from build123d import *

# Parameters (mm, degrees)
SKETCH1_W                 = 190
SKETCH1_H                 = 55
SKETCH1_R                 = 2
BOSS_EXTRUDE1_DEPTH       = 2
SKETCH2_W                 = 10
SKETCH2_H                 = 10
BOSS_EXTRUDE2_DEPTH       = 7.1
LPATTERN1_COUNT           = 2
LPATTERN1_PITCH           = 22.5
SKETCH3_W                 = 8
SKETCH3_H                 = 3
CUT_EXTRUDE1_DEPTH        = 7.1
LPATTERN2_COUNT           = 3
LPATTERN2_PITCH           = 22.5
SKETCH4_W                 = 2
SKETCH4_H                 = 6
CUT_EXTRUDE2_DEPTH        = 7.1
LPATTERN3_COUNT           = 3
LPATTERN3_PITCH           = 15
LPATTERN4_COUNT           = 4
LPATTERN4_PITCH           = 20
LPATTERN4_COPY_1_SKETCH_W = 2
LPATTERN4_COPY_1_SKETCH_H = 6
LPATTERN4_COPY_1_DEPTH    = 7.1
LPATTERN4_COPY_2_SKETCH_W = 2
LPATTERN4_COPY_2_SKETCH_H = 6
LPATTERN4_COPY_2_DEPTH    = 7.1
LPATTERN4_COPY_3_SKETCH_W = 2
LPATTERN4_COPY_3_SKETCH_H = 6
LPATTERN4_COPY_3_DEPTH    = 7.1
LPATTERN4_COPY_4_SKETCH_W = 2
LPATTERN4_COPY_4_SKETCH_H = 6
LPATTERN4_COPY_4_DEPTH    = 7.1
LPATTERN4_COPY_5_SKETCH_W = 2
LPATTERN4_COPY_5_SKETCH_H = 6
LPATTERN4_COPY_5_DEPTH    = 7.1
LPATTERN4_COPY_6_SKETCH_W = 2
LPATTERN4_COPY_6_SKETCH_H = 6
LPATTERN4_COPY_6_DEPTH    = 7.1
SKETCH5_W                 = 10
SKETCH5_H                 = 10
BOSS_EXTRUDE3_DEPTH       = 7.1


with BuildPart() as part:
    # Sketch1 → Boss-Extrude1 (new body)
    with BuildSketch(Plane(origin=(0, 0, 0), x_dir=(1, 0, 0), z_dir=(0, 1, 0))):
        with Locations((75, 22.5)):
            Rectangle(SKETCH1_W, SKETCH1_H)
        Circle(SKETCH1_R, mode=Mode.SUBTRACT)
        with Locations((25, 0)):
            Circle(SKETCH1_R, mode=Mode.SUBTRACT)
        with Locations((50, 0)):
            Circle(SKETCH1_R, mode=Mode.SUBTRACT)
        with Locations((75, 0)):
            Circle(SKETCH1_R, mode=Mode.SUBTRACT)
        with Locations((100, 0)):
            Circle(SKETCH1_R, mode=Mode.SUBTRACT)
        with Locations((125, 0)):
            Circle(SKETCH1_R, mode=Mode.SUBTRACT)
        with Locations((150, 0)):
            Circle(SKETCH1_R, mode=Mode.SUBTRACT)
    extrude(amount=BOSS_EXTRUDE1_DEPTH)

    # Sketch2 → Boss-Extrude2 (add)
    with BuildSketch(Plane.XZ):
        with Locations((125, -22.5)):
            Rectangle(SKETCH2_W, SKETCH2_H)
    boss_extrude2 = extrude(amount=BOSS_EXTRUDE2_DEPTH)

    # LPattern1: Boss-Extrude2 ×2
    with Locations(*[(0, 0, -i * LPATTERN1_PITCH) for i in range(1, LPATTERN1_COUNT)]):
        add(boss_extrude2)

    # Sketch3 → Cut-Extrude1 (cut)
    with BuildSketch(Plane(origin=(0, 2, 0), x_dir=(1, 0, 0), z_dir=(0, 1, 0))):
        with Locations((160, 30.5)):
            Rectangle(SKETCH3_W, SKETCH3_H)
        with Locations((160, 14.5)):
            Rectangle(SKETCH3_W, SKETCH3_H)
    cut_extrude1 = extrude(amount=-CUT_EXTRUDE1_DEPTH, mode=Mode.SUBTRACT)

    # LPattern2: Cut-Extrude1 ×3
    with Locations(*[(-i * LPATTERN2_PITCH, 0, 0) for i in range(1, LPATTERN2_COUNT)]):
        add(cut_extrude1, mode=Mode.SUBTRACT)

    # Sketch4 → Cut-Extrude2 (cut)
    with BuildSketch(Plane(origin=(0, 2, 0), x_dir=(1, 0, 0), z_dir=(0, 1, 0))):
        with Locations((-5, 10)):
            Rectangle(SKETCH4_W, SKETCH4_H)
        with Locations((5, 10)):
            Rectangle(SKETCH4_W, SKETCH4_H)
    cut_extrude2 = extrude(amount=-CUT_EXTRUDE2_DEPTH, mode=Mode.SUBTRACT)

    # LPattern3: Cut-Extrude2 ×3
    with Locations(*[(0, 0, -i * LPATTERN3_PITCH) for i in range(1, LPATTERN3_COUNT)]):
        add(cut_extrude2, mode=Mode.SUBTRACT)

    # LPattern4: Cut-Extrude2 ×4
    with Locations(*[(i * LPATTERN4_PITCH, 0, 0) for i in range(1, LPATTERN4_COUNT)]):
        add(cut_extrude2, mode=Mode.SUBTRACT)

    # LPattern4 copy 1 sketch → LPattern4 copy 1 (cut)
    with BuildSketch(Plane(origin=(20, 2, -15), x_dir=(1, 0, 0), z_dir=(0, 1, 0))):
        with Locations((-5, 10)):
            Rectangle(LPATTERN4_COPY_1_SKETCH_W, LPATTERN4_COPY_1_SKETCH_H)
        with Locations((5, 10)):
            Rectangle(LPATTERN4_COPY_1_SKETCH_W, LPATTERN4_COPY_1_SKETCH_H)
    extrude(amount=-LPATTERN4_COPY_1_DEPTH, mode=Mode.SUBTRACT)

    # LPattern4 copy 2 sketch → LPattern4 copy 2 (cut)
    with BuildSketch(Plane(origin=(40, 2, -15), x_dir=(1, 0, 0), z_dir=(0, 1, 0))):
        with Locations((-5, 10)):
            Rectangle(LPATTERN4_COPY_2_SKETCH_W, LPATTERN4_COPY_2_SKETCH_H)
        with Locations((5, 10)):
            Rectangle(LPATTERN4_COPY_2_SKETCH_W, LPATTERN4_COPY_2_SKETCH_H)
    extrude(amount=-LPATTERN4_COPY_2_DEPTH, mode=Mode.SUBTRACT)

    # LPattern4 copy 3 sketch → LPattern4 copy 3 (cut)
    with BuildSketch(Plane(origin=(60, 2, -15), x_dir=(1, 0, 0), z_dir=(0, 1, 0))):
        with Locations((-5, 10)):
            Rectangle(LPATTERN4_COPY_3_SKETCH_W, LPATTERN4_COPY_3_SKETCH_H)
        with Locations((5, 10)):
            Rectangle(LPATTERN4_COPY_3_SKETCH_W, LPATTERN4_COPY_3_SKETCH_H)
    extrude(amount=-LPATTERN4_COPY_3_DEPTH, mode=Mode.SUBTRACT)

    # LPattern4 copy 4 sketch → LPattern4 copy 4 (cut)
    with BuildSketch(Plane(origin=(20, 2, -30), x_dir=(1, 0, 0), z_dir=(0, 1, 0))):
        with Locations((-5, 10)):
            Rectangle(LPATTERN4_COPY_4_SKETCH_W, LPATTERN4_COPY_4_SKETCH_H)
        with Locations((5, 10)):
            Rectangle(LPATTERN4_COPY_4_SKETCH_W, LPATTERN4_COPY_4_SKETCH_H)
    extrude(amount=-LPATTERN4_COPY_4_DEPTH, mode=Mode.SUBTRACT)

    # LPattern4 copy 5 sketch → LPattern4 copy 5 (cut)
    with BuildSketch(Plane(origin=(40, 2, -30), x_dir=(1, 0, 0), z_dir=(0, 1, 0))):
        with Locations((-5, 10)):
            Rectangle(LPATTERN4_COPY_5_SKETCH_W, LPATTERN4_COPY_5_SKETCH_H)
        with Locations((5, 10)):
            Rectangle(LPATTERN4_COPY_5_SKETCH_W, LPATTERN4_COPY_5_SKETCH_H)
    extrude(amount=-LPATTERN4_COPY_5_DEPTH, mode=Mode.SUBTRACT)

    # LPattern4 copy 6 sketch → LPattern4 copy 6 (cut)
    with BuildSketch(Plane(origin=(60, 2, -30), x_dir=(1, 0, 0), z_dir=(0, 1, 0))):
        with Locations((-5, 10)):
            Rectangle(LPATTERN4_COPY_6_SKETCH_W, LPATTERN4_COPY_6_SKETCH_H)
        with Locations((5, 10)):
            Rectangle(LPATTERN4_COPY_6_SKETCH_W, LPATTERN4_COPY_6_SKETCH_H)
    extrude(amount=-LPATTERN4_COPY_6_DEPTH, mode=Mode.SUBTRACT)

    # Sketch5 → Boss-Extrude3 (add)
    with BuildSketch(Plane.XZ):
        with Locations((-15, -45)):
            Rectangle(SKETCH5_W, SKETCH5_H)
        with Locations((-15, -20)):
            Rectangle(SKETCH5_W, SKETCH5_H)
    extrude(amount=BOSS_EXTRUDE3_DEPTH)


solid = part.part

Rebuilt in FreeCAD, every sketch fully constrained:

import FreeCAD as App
import Part
import Sketcher
from FreeCAD import Vector
Q = App.Units.Quantity

doc = App.newDocument("Part")
params = doc.addObject("Spreadsheet::Sheet", "Params")
for row, (alias, value) in enumerate([
    ("sketch1_diameter", "4 mm"),
    ("sketch1_width", "190 mm"),
    ("sketch1_height", "55 mm"),
    ("pad1_length", "2 mm"),
    ("sketch2_width", "10 mm"),
    ("pad2_length", "7.1 mm"),
    ("linearpattern_pitch", "22.5 mm"),
    ("sketch3_width", "8 mm"),
    ("sketch3_height", "3 mm"),
    ("pocket1_length", "7.1 mm"),
    ("linearpattern2_pitch", "22.5 mm"),
    ("sketch4_width", "2 mm"),
    ("sketch4_height", "6 mm"),
    ("pocket2_length", "7.1 mm"),
    ("linearpattern3_pitch", "15 mm"),
    ("linearpattern4_pitch", "20 mm"),
    ("sketch5_width", "2 mm"),
    ("sketch5_height", "6 mm"),
    ("pocket3_length", "7.1 mm"),
    ("sketch6_width", "2 mm"),
    ("sketch6_height", "6 mm"),
    ("pocket4_length", "7.1 mm"),
    ("sketch7_width", "2 mm"),
    ("sketch7_height", "6 mm"),
    ("pocket5_length", "7.1 mm"),
    ("sketch8_width", "2 mm"),
    ("sketch8_height", "6 mm"),
    ("pocket6_length", "7.1 mm"),
    ("sketch9_width", "2 mm"),
    ("sketch9_height", "6 mm"),
    ("pocket7_length", "7.1 mm"),
    ("sketch10_width", "2 mm"),
    ("sketch10_height", "6 mm"),
    ("pocket8_length", "7.1 mm"),
    ("sketch11_width", "10 mm"),
    ("pad3_length", "7.1 mm"),
], start=1):
    params.set(f"A{row}", alias)
    params.set(f"B{row}", "=" + value)
    params.setAlias(f"B{row}", alias)

body = doc.addObject("PartDesign::Body", "Body")

# Sketch on XZ plane
sketch1 = doc.addObject("Sketcher::SketchObject", "Sketch")
body.addObject(sketch1)
sketch1.AttachmentSupport = (doc.XZ_Plane, [""])
sketch1.MapMode = "FlatFace"
sketch1.addGeometry([
    Part.LineSegment(Vector(-20, -50, 0), Vector(-20, 5, 0)),  # 0
    Part.LineSegment(Vector(-20, 5, 0), Vector(170, 5, 0)),  # 1
    Part.LineSegment(Vector(170, 5, 0), Vector(170, -50, 0)),  # 2
    Part.LineSegment(Vector(170, -50, 0), Vector(-20, -50, 0)),  # 3
    Part.Circle(Vector(0, 0, 0), Vector(0, 0, 1), 2),  # 4
    Part.Circle(Vector(25, 0, 0), Vector(0, 0, 1), 2),  # 5
    Part.Circle(Vector(50, 0, 0), Vector(0, 0, 1), 2),  # 6
    Part.Circle(Vector(75, 0, 0), Vector(0, 0, 1), 2),  # 7
    Part.Circle(Vector(100, 0, 0), Vector(0, 0, 1), 2),  # 8
    Part.Circle(Vector(125, 0, 0), Vector(0, 0, 1), 2),  # 9
    Part.Circle(Vector(150, 0, 0), Vector(0, 0, 1), 2),  # 10
], False)
sketch1.addConstraint([
    Sketcher.Constraint("Coincident", 0, 2, 1, 1),
    Sketcher.Constraint("Coincident", 1, 2, 2, 1),
    Sketcher.Constraint("Coincident", 2, 2, 3, 1),
    Sketcher.Constraint("Coincident", 3, 2, 0, 1),
    Sketcher.Constraint("Vertical", 0),
    Sketcher.Constraint("Horizontal", 1),
    Sketcher.Constraint("Vertical", 2),
    Sketcher.Constraint("Horizontal", 3),
    Sketcher.Constraint("Coincident", 4, 3, -1, 1),
    Sketcher.Constraint("Equal", 4, 5),
    Sketcher.Constraint("Equal", 5, 6),
    Sketcher.Constraint("Equal", 6, 7),
    Sketcher.Constraint("Equal", 7, 8),
    Sketcher.Constraint("Equal", 8, 9),
    Sketcher.Constraint("Equal", 9, 10),
    Sketcher.Constraint("PointOnObject", 5, 3, -1),
    Sketcher.Constraint("PointOnObject", 6, 3, -1),
    Sketcher.Constraint("PointOnObject", 7, 3, -1),
    Sketcher.Constraint("PointOnObject", 8, 3, -1),
    Sketcher.Constraint("PointOnObject", 9, 3, -1),
    Sketcher.Constraint("PointOnObject", 10, 3, -1),
    Sketcher.Constraint("Diameter", 4, Q("4 mm")),
    Sketcher.Constraint("DistanceX", 1, 1, 1, 2, Q("190 mm")),
    Sketcher.Constraint("DistanceY", 0, 1, 0, 2, Q("55 mm")),
    Sketcher.Constraint("DistanceX", -1, 1, 5, 3, Q("25 mm")),
    Sketcher.Constraint("DistanceX", -1, 1, 6, 3, Q("50 mm")),
    Sketcher.Constraint("DistanceX", -1, 1, 7, 3, Q("75 mm")),
    Sketcher.Constraint("DistanceX", -1, 1, 8, 3, Q("100 mm")),
    Sketcher.Constraint("DistanceX", -1, 1, 9, 3, Q("125 mm")),
    Sketcher.Constraint("DistanceX", -1, 1, 10, 3, Q("150 mm")),
    Sketcher.Constraint("DistanceX", 0, 2, -1, 1, Q("20 mm")),
    Sketcher.Constraint("DistanceY", -1, 1, 0, 2, Q("5 mm")),
])
sketch1.setExpression("Constraints[21]", "Params.sketch1_diameter")
sketch1.setExpression("Constraints[22]", "Params.sketch1_width")
sketch1.setExpression("Constraints[23]", "Params.sketch1_height")
pad1 = doc.addObject("PartDesign::Pad", "Pad")
body.addObject(pad1)
pad1.Profile = sketch1
pad1.setExpression("Length", "Params.pad1_length")
pad1.Reversed = True

# Sketch on XZ plane
sketch2 = doc.addObject("Sketcher::SketchObject", "Sketch001")
body.addObject(sketch2)
sketch2.AttachmentSupport = (doc.XZ_Plane, [""])
sketch2.MapMode = "FlatFace"
sketch2.addGeometry([
    Part.LineSegment(Vector(120, -18, 0), Vector(120, -28, 0)),
    Part.LineSegment(Vector(120, -28, 0), Vector(130, -28, 0)),
    Part.LineSegment(Vector(130, -28, 0), Vector(130, -18, 0)),
    Part.LineSegment(Vector(130, -18, 0), Vector(120, -18, 0)),
], False)
sketch2.addConstraint([
    Sketcher.Constraint("Coincident", 0, 2, 1, 1),
    Sketcher.Constraint("Coincident", 1, 2, 2, 1),
    Sketcher.Constraint("Coincident", 2, 2, 3, 1),
    Sketcher.Constraint("Coincident", 3, 2, 0, 1),
    Sketcher.Constraint("Vertical", 0),
    Sketcher.Constraint("Horizontal", 1),
    Sketcher.Constraint("Vertical", 2),
    Sketcher.Constraint("Horizontal", 3),
    Sketcher.Constraint("Equal", 3, 0),
    Sketcher.Constraint("DistanceX", 1, 1, 1, 2, Q("10 mm")),
    Sketcher.Constraint("DistanceX", -1, 1, 0, 2, Q("120 mm")),
    Sketcher.Constraint("DistanceY", 0, 2, -1, 1, Q("27.5 mm")),
])
sketch2.setExpression("Constraints[9]", "Params.sketch2_width")
pad2 = doc.addObject("PartDesign::Pad", "Pad001")
body.addObject(pad2)
pad2.Profile = sketch2
pad2.setExpression("Length", "Params.pad2_length")
doc.recompute()

linearpattern = doc.addObject("PartDesign::LinearPattern", "LinearPattern")
body.addObject(linearpattern)
linearpattern.Originals = [pad2]
linearpattern.Direction = (doc.Z_Axis, [""])
linearpattern.Mode = "offset"
linearpattern.setExpression("Offset", "Params.linearpattern_pitch")
linearpattern.Occurrences = 2
linearpattern.Reversed = True
body.Tip = linearpattern

# Sketch on XZ plane
sketch3 = doc.addObject("Sketcher::SketchObject", "Sketch002")
body.addObject(sketch3)
sketch3.AttachmentSupport = (doc.XZ_Plane, [""])
sketch3.MapMode = "FlatFace"
sketch3.AttachmentOffset = App.Placement(Vector(0, 0, -2), App.Rotation())
sketch3.addGeometry([
    Part.LineSegment(Vector(156, -32, 0), Vector(156, -29, 0)),  # 0
    Part.LineSegment(Vector(156, -29, 0), Vector(164, -29, 0)),  # 1
    Part.LineSegment(Vector(164, -29, 0), Vector(164, -32, 0)),  # 2
    Part.LineSegment(Vector(164, -32, 0), Vector(156, -32, 0)),  # 3
    Part.LineSegment(Vector(156, -16, 0), Vector(156, -13, 0)),  # 4
    Part.LineSegment(Vector(156, -13, 0), Vector(164, -13, 0)),  # 5
    Part.LineSegment(Vector(164, -13, 0), Vector(164, -16, 0)),  # 6
    Part.LineSegment(Vector(164, -16, 0), Vector(156, -16, 0)),  # 7
], False)
sketch3.addConstraint([
    Sketcher.Constraint("Coincident", 0, 2, 1, 1),
    Sketcher.Constraint("Coincident", 1, 2, 2, 1),
    Sketcher.Constraint("Coincident", 2, 2, 3, 1),
    Sketcher.Constraint("Coincident", 3, 2, 0, 1),
    Sketcher.Constraint("Coincident", 4, 2, 5, 1),
    Sketcher.Constraint("Coincident", 5, 2, 6, 1),
    Sketcher.Constraint("Coincident", 6, 2, 7, 1),
    Sketcher.Constraint("Coincident", 7, 2, 4, 1),
    Sketcher.Constraint("Vertical", 0),
    Sketcher.Constraint("Horizontal", 1),
    Sketcher.Constraint("Vertical", 2),
    Sketcher.Constraint("Horizontal", 3),
    Sketcher.Constraint("Vertical", 4),
    Sketcher.Constraint("Horizontal", 5),
    Sketcher.Constraint("Vertical", 6),
    Sketcher.Constraint("Horizontal", 7),
    Sketcher.Constraint("Vertical", 3, 2, 4, 2),
    Sketcher.Constraint("Vertical", 2, 2, 5, 2),
    Sketcher.Constraint("Equal", 2, 4),
    Sketcher.Constraint("DistanceX", 1, 1, 1, 2, Q("8 mm")),
    Sketcher.Constraint("DistanceY", 0, 1, 0, 2, Q("3 mm")),
    Sketcher.Constraint("DistanceX", -1, 1, 0, 2, Q("156 mm")),
    Sketcher.Constraint("DistanceY", 0, 2, -1, 1, Q("29 mm")),
    Sketcher.Constraint("DistanceY", 4, 2, -1, 1, Q("13 mm")),
])
sketch3.setExpression("Constraints[19]", "Params.sketch3_width")
sketch3.setExpression("Constraints[20]", "Params.sketch3_height")
pocket1 = doc.addObject("PartDesign::Pocket", "Pocket")
body.addObject(pocket1)
pocket1.Profile = sketch3
pocket1.setExpression("Length", "Params.pocket1_length")
pocket1.Reversed = True
doc.recompute()

linearpattern2 = doc.addObject("PartDesign::LinearPattern", "LinearPattern001")
body.addObject(linearpattern2)
linearpattern2.Originals = [pocket1]
linearpattern2.Direction = (doc.X_Axis, [""])
linearpattern2.Mode = "offset"
linearpattern2.setExpression("Offset", "Params.linearpattern2_pitch")
linearpattern2.Occurrences = 3
linearpattern2.Reversed = True
body.Tip = linearpattern2

# Sketch on XZ plane
sketch4 = doc.addObject("Sketcher::SketchObject", "Sketch003")
body.addObject(sketch4)
sketch4.AttachmentSupport = (doc.XZ_Plane, [""])
sketch4.MapMode = "FlatFace"
sketch4.AttachmentOffset = App.Placement(Vector(0, 0, -2), App.Rotation())
sketch4.addGeometry([
    Part.LineSegment(Vector(-6, -13, 0), Vector(-6, -7, 0)),  # 0
    Part.LineSegment(Vector(-6, -7, 0), Vector(-4, -7, 0)),  # 1
    Part.LineSegment(Vector(-4, -7, 0), Vector(-4, -13, 0)),  # 2
    Part.LineSegment(Vector(-4, -13, 0), Vector(-6, -13, 0)),  # 3
    Part.LineSegment(Vector(4, -13, 0), Vector(4, -7, 0)),  # 4
    Part.LineSegment(Vector(4, -7, 0), Vector(6, -7, 0)),  # 5
    Part.LineSegment(Vector(6, -7, 0), Vector(6, -13, 0)),  # 6
    Part.LineSegment(Vector(6, -13, 0), Vector(4, -13, 0)),  # 7
], False)
sketch4.addConstraint([
    Sketcher.Constraint("Coincident", 0, 2, 1, 1),
    Sketcher.Constraint("Coincident", 1, 2, 2, 1),
    Sketcher.Constraint("Coincident", 2, 2, 3, 1),
    Sketcher.Constraint("Coincident", 3, 2, 0, 1),
    Sketcher.Constraint("Coincident", 4, 2, 5, 1),
    Sketcher.Constraint("Coincident", 5, 2, 6, 1),
    Sketcher.Constraint("Coincident", 6, 2, 7, 1),
    Sketcher.Constraint("Coincident", 7, 2, 4, 1),
    Sketcher.Constraint("Vertical", 0),
    Sketcher.Constraint("Horizontal", 1),
    Sketcher.Constraint("Vertical", 2),
    Sketcher.Constraint("Horizontal", 3),
    Sketcher.Constraint("Vertical", 4),
    Sketcher.Constraint("Horizontal", 5),
    Sketcher.Constraint("Vertical", 6),
    Sketcher.Constraint("Horizontal", 7),
    Sketcher.Constraint("Symmetric", 1, 2, 4, 2, -2),
    Sketcher.Constraint("Symmetric", 3, 2, 6, 2, -2),
    Sketcher.Constraint("DistanceX", 1, 1, 1, 2, Q("2 mm")),
    Sketcher.Constraint("DistanceY", 0, 1, 0, 2, Q("6 mm")),
    Sketcher.Constraint("DistanceX", 0, 2, -1, 1, Q("6 mm")),
    Sketcher.Constraint("DistanceY", 0, 2, -1, 1, Q("7 mm")),
])
sketch4.setExpression("Constraints[18]", "Params.sketch4_width")
sketch4.setExpression("Constraints[19]", "Params.sketch4_height")
pocket2 = doc.addObject("PartDesign::Pocket", "Pocket001")
body.addObject(pocket2)
pocket2.Profile = sketch4
pocket2.setExpression("Length", "Params.pocket2_length")
pocket2.Reversed = True
doc.recompute()

linearpattern3 = doc.addObject("PartDesign::LinearPattern", "LinearPattern002")
body.addObject(linearpattern3)
linearpattern3.Originals = [pocket2]
linearpattern3.Direction = (doc.Z_Axis, [""])
linearpattern3.Mode = "offset"
linearpattern3.setExpression("Offset", "Params.linearpattern3_pitch")
linearpattern3.Occurrences = 3
linearpattern3.Reversed = True
body.Tip = linearpattern3
doc.recompute()

linearpattern4 = doc.addObject("PartDesign::LinearPattern", "LinearPattern003")
body.addObject(linearpattern4)
linearpattern4.Originals = [pocket2]
linearpattern4.Direction = (doc.X_Axis, [""])
linearpattern4.Mode = "offset"
linearpattern4.setExpression("Offset", "Params.linearpattern4_pitch")
linearpattern4.Occurrences = 4
body.Tip = linearpattern4

# Sketch on XZ plane
sketch5 = doc.addObject("Sketcher::SketchObject", "Sketch004")
body.addObject(sketch5)
sketch5.AttachmentSupport = (doc.XZ_Plane, [""])
sketch5.MapMode = "FlatFace"
sketch5.AttachmentOffset = App.Placement(Vector(0, 0, -2), App.Rotation())
sketch5.addGeometry([
    Part.LineSegment(Vector(14, -28, 0), Vector(14, -22, 0)),  # 0
    Part.LineSegment(Vector(14, -22, 0), Vector(16, -22, 0)),  # 1
    Part.LineSegment(Vector(16, -22, 0), Vector(16, -28, 0)),  # 2
    Part.LineSegment(Vector(16, -28, 0), Vector(14, -28, 0)),  # 3
    Part.LineSegment(Vector(24, -28, 0), Vector(24, -22, 0)),  # 4
    Part.LineSegment(Vector(24, -22, 0), Vector(26, -22, 0)),  # 5
    Part.LineSegment(Vector(26, -22, 0), Vector(26, -28, 0)),  # 6
    Part.LineSegment(Vector(26, -28, 0), Vector(24, -28, 0)),  # 7
], False)
sketch5.addConstraint([
    Sketcher.Constraint("Coincident", 0, 2, 1, 1),
    Sketcher.Constraint("Coincident", 1, 2, 2, 1),
    Sketcher.Constraint("Coincident", 2, 2, 3, 1),
    Sketcher.Constraint("Coincident", 3, 2, 0, 1),
    Sketcher.Constraint("Coincident", 4, 2, 5, 1),
    Sketcher.Constraint("Coincident", 5, 2, 6, 1),
    Sketcher.Constraint("Coincident", 6, 2, 7, 1),
    Sketcher.Constraint("Coincident", 7, 2, 4, 1),
    Sketcher.Constraint("Vertical", 0),
    Sketcher.Constraint("Horizontal", 1),
    Sketcher.Constraint("Vertical", 2),
    Sketcher.Constraint("Horizontal", 3),
    Sketcher.Constraint("Vertical", 4),
    Sketcher.Constraint("Horizontal", 5),
    Sketcher.Constraint("Vertical", 6),
    Sketcher.Constraint("Horizontal", 7),
    Sketcher.Constraint("Horizontal", 1, 2, 4, 2),
    Sketcher.Constraint("Horizontal", 3, 2, 6, 2),
    Sketcher.Constraint("Equal", 3, 5),
    Sketcher.Constraint("DistanceX", 1, 1, 1, 2, Q("2 mm")),
    Sketcher.Constraint("DistanceY", 0, 1, 0, 2, Q("6 mm")),
    Sketcher.Constraint("DistanceX", -1, 1, 0, 2, Q("14 mm")),
    Sketcher.Constraint("DistanceY", 0, 2, -1, 1, Q("22 mm")),
    Sketcher.Constraint("DistanceX", -1, 1, 4, 2, Q("24 mm")),
])
sketch5.setExpression("Constraints[19]", "Params.sketch5_width")
sketch5.setExpression("Constraints[20]", "Params.sketch5_height")
pocket3 = doc.addObject("PartDesign::Pocket", "Pocket002")
body.addObject(pocket3)
pocket3.Profile = sketch5
pocket3.setExpression("Length", "Params.pocket3_length")
pocket3.Reversed = True

# Sketch on XZ plane
sketch6 = doc.addObject("Sketcher::SketchObject", "Sketch005")
body.addObject(sketch6)
sketch6.AttachmentSupport = (doc.XZ_Plane, [""])
sketch6.MapMode = "FlatFace"
sketch6.AttachmentOffset = App.Placement(Vector(0, 0, -2), App.Rotation())
sketch6.addGeometry([
    Part.LineSegment(Vector(34, -28, 0), Vector(34, -22, 0)),  # 0
    Part.LineSegment(Vector(34, -22, 0), Vector(36, -22, 0)),  # 1
    Part.LineSegment(Vector(36, -22, 0), Vector(36, -28, 0)),  # 2
    Part.LineSegment(Vector(36, -28, 0), Vector(34, -28, 0)),  # 3
    Part.LineSegment(Vector(44, -28, 0), Vector(44, -22, 0)),  # 4
    Part.LineSegment(Vector(44, -22, 0), Vector(46, -22, 0)),  # 5
    Part.LineSegment(Vector(46, -22, 0), Vector(46, -28, 0)),  # 6
    Part.LineSegment(Vector(46, -28, 0), Vector(44, -28, 0)),  # 7
], False)
sketch6.addConstraint([
    Sketcher.Constraint("Coincident", 0, 2, 1, 1),
    Sketcher.Constraint("Coincident", 1, 2, 2, 1),
    Sketcher.Constraint("Coincident", 2, 2, 3, 1),
    Sketcher.Constraint("Coincident", 3, 2, 0, 1),
    Sketcher.Constraint("Coincident", 4, 2, 5, 1),
    Sketcher.Constraint("Coincident", 5, 2, 6, 1),
    Sketcher.Constraint("Coincident", 6, 2, 7, 1),
    Sketcher.Constraint("Coincident", 7, 2, 4, 1),
    Sketcher.Constraint("Vertical", 0),
    Sketcher.Constraint("Horizontal", 1),
    Sketcher.Constraint("Vertical", 2),
    Sketcher.Constraint("Horizontal", 3),
    Sketcher.Constraint("Vertical", 4),
    Sketcher.Constraint("Horizontal", 5),
    Sketcher.Constraint("Vertical", 6),
    Sketcher.Constraint("Horizontal", 7),
    Sketcher.Constraint("Horizontal", 1, 2, 4, 2),
    Sketcher.Constraint("Horizontal", 3, 2, 6, 2),
    Sketcher.Constraint("Equal", 3, 5),
    Sketcher.Constraint("DistanceX", 1, 1, 1, 2, Q("2 mm")),
    Sketcher.Constraint("DistanceY", 0, 1, 0, 2, Q("6 mm")),
    Sketcher.Constraint("DistanceX", -1, 1, 0, 2, Q("34 mm")),
    Sketcher.Constraint("DistanceY", 0, 2, -1, 1, Q("22 mm")),
    Sketcher.Constraint("DistanceX", -1, 1, 4, 2, Q("44 mm")),
])
sketch6.setExpression("Constraints[19]", "Params.sketch6_width")
sketch6.setExpression("Constraints[20]", "Params.sketch6_height")
pocket4 = doc.addObject("PartDesign::Pocket", "Pocket003")
body.addObject(pocket4)
pocket4.Profile = sketch6
pocket4.setExpression("Length", "Params.pocket4_length")
pocket4.Reversed = True

# Sketch on XZ plane
sketch7 = doc.addObject("Sketcher::SketchObject", "Sketch006")
body.addObject(sketch7)
sketch7.AttachmentSupport = (doc.XZ_Plane, [""])
sketch7.MapMode = "FlatFace"
sketch7.AttachmentOffset = App.Placement(Vector(0, 0, -2), App.Rotation())
sketch7.addGeometry([
    Part.LineSegment(Vector(54, -28, 0), Vector(54, -22, 0)),  # 0
    Part.LineSegment(Vector(54, -22, 0), Vector(56, -22, 0)),  # 1
    Part.LineSegment(Vector(56, -22, 0), Vector(56, -28, 0)),  # 2
    Part.LineSegment(Vector(56, -28, 0), Vector(54, -28, 0)),  # 3
    Part.LineSegment(Vector(64, -28, 0), Vector(64, -22, 0)),  # 4
    Part.LineSegment(Vector(64, -22, 0), Vector(66, -22, 0)),  # 5
    Part.LineSegment(Vector(66, -22, 0), Vector(66, -28, 0)),  # 6
    Part.LineSegment(Vector(66, -28, 0), Vector(64, -28, 0)),  # 7
], False)
sketch7.addConstraint([
    Sketcher.Constraint("Coincident", 0, 2, 1, 1),
    Sketcher.Constraint("Coincident", 1, 2, 2, 1),
    Sketcher.Constraint("Coincident", 2, 2, 3, 1),
    Sketcher.Constraint("Coincident", 3, 2, 0, 1),
    Sketcher.Constraint("Coincident", 4, 2, 5, 1),
    Sketcher.Constraint("Coincident", 5, 2, 6, 1),
    Sketcher.Constraint("Coincident", 6, 2, 7, 1),
    Sketcher.Constraint("Coincident", 7, 2, 4, 1),
    Sketcher.Constraint("Vertical", 0),
    Sketcher.Constraint("Horizontal", 1),
    Sketcher.Constraint("Vertical", 2),
    Sketcher.Constraint("Horizontal", 3),
    Sketcher.Constraint("Vertical", 4),
    Sketcher.Constraint("Horizontal", 5),
    Sketcher.Constraint("Vertical", 6),
    Sketcher.Constraint("Horizontal", 7),
    Sketcher.Constraint("Horizontal", 1, 2, 4, 2),
    Sketcher.Constraint("Horizontal", 3, 2, 6, 2),
    Sketcher.Constraint("Equal", 3, 5),
    Sketcher.Constraint("DistanceX", 1, 1, 1, 2, Q("2 mm")),
    Sketcher.Constraint("DistanceY", 0, 1, 0, 2, Q("6 mm")),
    Sketcher.Constraint("DistanceX", -1, 1, 0, 2, Q("54 mm")),
    Sketcher.Constraint("DistanceY", 0, 2, -1, 1, Q("22 mm")),
    Sketcher.Constraint("DistanceX", -1, 1, 4, 2, Q("64 mm")),
])
sketch7.setExpression("Constraints[19]", "Params.sketch7_width")
sketch7.setExpression("Constraints[20]", "Params.sketch7_height")
pocket5 = doc.addObject("PartDesign::Pocket", "Pocket004")
body.addObject(pocket5)
pocket5.Profile = sketch7
pocket5.setExpression("Length", "Params.pocket5_length")
pocket5.Reversed = True

# Sketch on XZ plane
sketch8 = doc.addObject("Sketcher::SketchObject", "Sketch007")
body.addObject(sketch8)
sketch8.AttachmentSupport = (doc.XZ_Plane, [""])
sketch8.MapMode = "FlatFace"
sketch8.AttachmentOffset = App.Placement(Vector(0, 0, -2), App.Rotation())
sketch8.addGeometry([
    Part.LineSegment(Vector(14, -43, 0), Vector(14, -37, 0)),  # 0
    Part.LineSegment(Vector(14, -37, 0), Vector(16, -37, 0)),  # 1
    Part.LineSegment(Vector(16, -37, 0), Vector(16, -43, 0)),  # 2
    Part.LineSegment(Vector(16, -43, 0), Vector(14, -43, 0)),  # 3
    Part.LineSegment(Vector(24, -43, 0), Vector(24, -37, 0)),  # 4
    Part.LineSegment(Vector(24, -37, 0), Vector(26, -37, 0)),  # 5
    Part.LineSegment(Vector(26, -37, 0), Vector(26, -43, 0)),  # 6
    Part.LineSegment(Vector(26, -43, 0), Vector(24, -43, 0)),  # 7
], False)
sketch8.addConstraint([
    Sketcher.Constraint("Coincident", 0, 2, 1, 1),
    Sketcher.Constraint("Coincident", 1, 2, 2, 1),
    Sketcher.Constraint("Coincident", 2, 2, 3, 1),
    Sketcher.Constraint("Coincident", 3, 2, 0, 1),
    Sketcher.Constraint("Coincident", 4, 2, 5, 1),
    Sketcher.Constraint("Coincident", 5, 2, 6, 1),
    Sketcher.Constraint("Coincident", 6, 2, 7, 1),
    Sketcher.Constraint("Coincident", 7, 2, 4, 1),
    Sketcher.Constraint("Vertical", 0),
    Sketcher.Constraint("Horizontal", 1),
    Sketcher.Constraint("Vertical", 2),
    Sketcher.Constraint("Horizontal", 3),
    Sketcher.Constraint("Vertical", 4),
    Sketcher.Constraint("Horizontal", 5),
    Sketcher.Constraint("Vertical", 6),
    Sketcher.Constraint("Horizontal", 7),
    Sketcher.Constraint("Horizontal", 1, 2, 4, 2),
    Sketcher.Constraint("Horizontal", 3, 2, 6, 2),
    Sketcher.Constraint("Equal", 3, 5),
    Sketcher.Constraint("DistanceX", 1, 1, 1, 2, Q("2 mm")),
    Sketcher.Constraint("DistanceY", 0, 1, 0, 2, Q("6 mm")),
    Sketcher.Constraint("DistanceX", -1, 1, 0, 2, Q("14 mm")),
    Sketcher.Constraint("DistanceY", 0, 2, -1, 1, Q("37 mm")),
    Sketcher.Constraint("DistanceX", -1, 1, 4, 2, Q("24 mm")),
])
sketch8.setExpression("Constraints[19]", "Params.sketch8_width")
sketch8.setExpression("Constraints[20]", "Params.sketch8_height")
pocket6 = doc.addObject("PartDesign::Pocket", "Pocket005")
body.addObject(pocket6)
pocket6.Profile = sketch8
pocket6.setExpression("Length", "Params.pocket6_length")
pocket6.Reversed = True

# Sketch on XZ plane
sketch9 = doc.addObject("Sketcher::SketchObject", "Sketch008")
body.addObject(sketch9)
sketch9.AttachmentSupport = (doc.XZ_Plane, [""])
sketch9.MapMode = "FlatFace"
sketch9.AttachmentOffset = App.Placement(Vector(0, 0, -2), App.Rotation())
sketch9.addGeometry([
    Part.LineSegment(Vector(34, -43, 0), Vector(34, -37, 0)),  # 0
    Part.LineSegment(Vector(34, -37, 0), Vector(36, -37, 0)),  # 1
    Part.LineSegment(Vector(36, -37, 0), Vector(36, -43, 0)),  # 2
    Part.LineSegment(Vector(36, -43, 0), Vector(34, -43, 0)),  # 3
    Part.LineSegment(Vector(44, -43, 0), Vector(44, -37, 0)),  # 4
    Part.LineSegment(Vector(44, -37, 0), Vector(46, -37, 0)),  # 5
    Part.LineSegment(Vector(46, -37, 0), Vector(46, -43, 0)),  # 6
    Part.LineSegment(Vector(46, -43, 0), Vector(44, -43, 0)),  # 7
], False)
sketch9.addConstraint([
    Sketcher.Constraint("Coincident", 0, 2, 1, 1),
    Sketcher.Constraint("Coincident", 1, 2, 2, 1),
    Sketcher.Constraint("Coincident", 2, 2, 3, 1),
    Sketcher.Constraint("Coincident", 3, 2, 0, 1),
    Sketcher.Constraint("Coincident", 4, 2, 5, 1),
    Sketcher.Constraint("Coincident", 5, 2, 6, 1),
    Sketcher.Constraint("Coincident", 6, 2, 7, 1),
    Sketcher.Constraint("Coincident", 7, 2, 4, 1),
    Sketcher.Constraint("Vertical", 0),
    Sketcher.Constraint("Horizontal", 1),
    Sketcher.Constraint("Vertical", 2),
    Sketcher.Constraint("Horizontal", 3),
    Sketcher.Constraint("Vertical", 4),
    Sketcher.Constraint("Horizontal", 5),
    Sketcher.Constraint("Vertical", 6),
    Sketcher.Constraint("Horizontal", 7),
    Sketcher.Constraint("Horizontal", 1, 2, 4, 2),
    Sketcher.Constraint("Horizontal", 3, 2, 6, 2),
    Sketcher.Constraint("Equal", 3, 5),
    Sketcher.Constraint("DistanceX", 1, 1, 1, 2, Q("2 mm")),
    Sketcher.Constraint("DistanceY", 0, 1, 0, 2, Q("6 mm")),
    Sketcher.Constraint("DistanceX", -1, 1, 0, 2, Q("34 mm")),
    Sketcher.Constraint("DistanceY", 0, 2, -1, 1, Q("37 mm")),
    Sketcher.Constraint("DistanceX", -1, 1, 4, 2, Q("44 mm")),
])
sketch9.setExpression("Constraints[19]", "Params.sketch9_width")
sketch9.setExpression("Constraints[20]", "Params.sketch9_height")
pocket7 = doc.addObject("PartDesign::Pocket", "Pocket006")
body.addObject(pocket7)
pocket7.Profile = sketch9
pocket7.setExpression("Length", "Params.pocket7_length")
pocket7.Reversed = True

# Sketch on XZ plane
sketch10 = doc.addObject("Sketcher::SketchObject", "Sketch009")
body.addObject(sketch10)
sketch10.AttachmentSupport = (doc.XZ_Plane, [""])
sketch10.MapMode = "FlatFace"
sketch10.AttachmentOffset = App.Placement(Vector(0, 0, -2), App.Rotation())
sketch10.addGeometry([
    Part.LineSegment(Vector(54, -43, 0), Vector(54, -37, 0)),  # 0
    Part.LineSegment(Vector(54, -37, 0), Vector(56, -37, 0)),  # 1
    Part.LineSegment(Vector(56, -37, 0), Vector(56, -43, 0)),  # 2
    Part.LineSegment(Vector(56, -43, 0), Vector(54, -43, 0)),  # 3
    Part.LineSegment(Vector(64, -43, 0), Vector(64, -37, 0)),  # 4
    Part.LineSegment(Vector(64, -37, 0), Vector(66, -37, 0)),  # 5
    Part.LineSegment(Vector(66, -37, 0), Vector(66, -43, 0)),  # 6
    Part.LineSegment(Vector(66, -43, 0), Vector(64, -43, 0)),  # 7
], False)
sketch10.addConstraint([
    Sketcher.Constraint("Coincident", 0, 2, 1, 1),
    Sketcher.Constraint("Coincident", 1, 2, 2, 1),
    Sketcher.Constraint("Coincident", 2, 2, 3, 1),
    Sketcher.Constraint("Coincident", 3, 2, 0, 1),
    Sketcher.Constraint("Coincident", 4, 2, 5, 1),
    Sketcher.Constraint("Coincident", 5, 2, 6, 1),
    Sketcher.Constraint("Coincident", 6, 2, 7, 1),
    Sketcher.Constraint("Coincident", 7, 2, 4, 1),
    Sketcher.Constraint("Vertical", 0),
    Sketcher.Constraint("Horizontal", 1),
    Sketcher.Constraint("Vertical", 2),
    Sketcher.Constraint("Horizontal", 3),
    Sketcher.Constraint("Vertical", 4),
    Sketcher.Constraint("Horizontal", 5),
    Sketcher.Constraint("Vertical", 6),
    Sketcher.Constraint("Horizontal", 7),
    Sketcher.Constraint("Horizontal", 1, 2, 4, 2),
    Sketcher.Constraint("Horizontal", 3, 2, 6, 2),
    Sketcher.Constraint("Equal", 3, 5),
    Sketcher.Constraint("DistanceX", 1, 1, 1, 2, Q("2 mm")),
    Sketcher.Constraint("DistanceY", 0, 1, 0, 2, Q("6 mm")),
    Sketcher.Constraint("DistanceX", -1, 1, 0, 2, Q("54 mm")),
    Sketcher.Constraint("DistanceY", 0, 2, -1, 1, Q("37 mm")),
    Sketcher.Constraint("DistanceX", -1, 1, 4, 2, Q("64 mm")),
])
sketch10.setExpression("Constraints[19]", "Params.sketch10_width")
sketch10.setExpression("Constraints[20]", "Params.sketch10_height")
pocket8 = doc.addObject("PartDesign::Pocket", "Pocket007")
body.addObject(pocket8)
pocket8.Profile = sketch10
pocket8.setExpression("Length", "Params.pocket8_length")
pocket8.Reversed = True

# Sketch on XZ plane
sketch11 = doc.addObject("Sketcher::SketchObject", "Sketch010")
body.addObject(sketch11)
sketch11.AttachmentSupport = (doc.XZ_Plane, [""])
sketch11.MapMode = "FlatFace"
sketch11.addGeometry([
    Part.LineSegment(Vector(-20, -40, 0), Vector(-20, -50, 0)),  # 0
    Part.LineSegment(Vector(-20, -50, 0), Vector(-10, -50, 0)),  # 1
    Part.LineSegment(Vector(-10, -50, 0), Vector(-10, -40, 0)),  # 2
    Part.LineSegment(Vector(-10, -40, 0), Vector(-20, -40, 0)),  # 3
    Part.LineSegment(Vector(-20, -15, 0), Vector(-20, -25, 0)),  # 4
    Part.LineSegment(Vector(-20, -25, 0), Vector(-10, -25, 0)),  # 5
    Part.LineSegment(Vector(-10, -25, 0), Vector(-10, -15, 0)),  # 6
    Part.LineSegment(Vector(-10, -15, 0), Vector(-20, -15, 0)),  # 7
], False)
sketch11.addConstraint([
    Sketcher.Constraint("Coincident", 0, 2, 1, 1),
    Sketcher.Constraint("Coincident", 1, 2, 2, 1),
    Sketcher.Constraint("Coincident", 2, 2, 3, 1),
    Sketcher.Constraint("Coincident", 3, 2, 0, 1),
    Sketcher.Constraint("Coincident", 4, 2, 5, 1),
    Sketcher.Constraint("Coincident", 5, 2, 6, 1),
    Sketcher.Constraint("Coincident", 6, 2, 7, 1),
    Sketcher.Constraint("Coincident", 7, 2, 4, 1),
    Sketcher.Constraint("Vertical", 0),
    Sketcher.Constraint("Horizontal", 1),
    Sketcher.Constraint("Vertical", 2),
    Sketcher.Constraint("Horizontal", 3),
    Sketcher.Constraint("Vertical", 4),
    Sketcher.Constraint("Horizontal", 5),
    Sketcher.Constraint("Vertical", 6),
    Sketcher.Constraint("Horizontal", 7),
    Sketcher.Constraint("Vertical", 3, 2, 4, 2),
    Sketcher.Constraint("Vertical", 2, 2, 5, 2),
    Sketcher.Constraint("Equal", 7, 0),
    Sketcher.Constraint("Equal", 2, 4),
    Sketcher.Constraint("DistanceX", 1, 1, 1, 2, Q("10 mm")),
    Sketcher.Constraint("DistanceX", 0, 2, -1, 1, Q("20 mm")),
    Sketcher.Constraint("DistanceY", 0, 2, -1, 1, Q("50 mm")),
    Sketcher.Constraint("DistanceY", 4, 2, -1, 1, Q("25 mm")),
])
sketch11.setExpression("Constraints[20]", "Params.sketch11_width")
pad3 = doc.addObject("PartDesign::Pad", "Pad002")
body.addObject(pad3)
pad3.Profile = sketch11
pad3.setExpression("Length", "Params.pad3_length")

doc.recompute()
